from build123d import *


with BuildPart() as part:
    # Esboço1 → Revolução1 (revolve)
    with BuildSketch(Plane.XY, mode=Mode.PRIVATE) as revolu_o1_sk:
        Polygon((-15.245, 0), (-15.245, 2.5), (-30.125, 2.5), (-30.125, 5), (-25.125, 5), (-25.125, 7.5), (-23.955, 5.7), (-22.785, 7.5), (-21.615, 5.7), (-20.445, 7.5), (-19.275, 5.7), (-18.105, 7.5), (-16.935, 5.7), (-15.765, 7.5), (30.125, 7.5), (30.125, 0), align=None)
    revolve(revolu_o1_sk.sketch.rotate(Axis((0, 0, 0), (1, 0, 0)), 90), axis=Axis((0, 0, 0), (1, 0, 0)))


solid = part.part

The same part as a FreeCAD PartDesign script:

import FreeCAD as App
import Part
import Sketcher
from FreeCAD import Vector
Q = App.Units.Quantity

doc = App.newDocument("Part")
params = doc.addObject("Spreadsheet::Sheet", "Params")
for row, (alias, value) in enumerate([
    ("sketch1_width", "5 mm"),
    ("sketch1_height", "2.5 mm"),
    ("sketch1_width2", "45.37 mm"),
    ("sketch1_width3", "45.89 mm"),
    ("sketch1_width4", "14.88 mm"),
    ("revolution_angle", "360 deg"),
], start=1):
    params.set(f"A{row}", alias)
    params.set(f"B{row}", "=" + value)
    params.setAlias(f"B{row}", alias)

body = doc.addObject("PartDesign::Body", "Body")

# Sketch on XY plane
sketch1 = body.newObject("Sketcher::SketchObject", "Sketch")
sketch1.AttachmentSupport = (doc.getObject("XY_Plane"), [""])
sketch1.MapMode = "FlatFace"
sketch1.addGeometry([
    Part.LineSegment(Vector(-15.2, 2.5, 0), Vector(-15.2, 0, 0)),  # 0
    Part.LineSegment(Vector(-15.2, 0, 0), Vector(30.1, 0, 0)),  # 1
    Part.LineSegment(Vector(30.1, 0, 0), Vector(30.1, 7.5, 0)),  # 2
    Part.LineSegment(Vector(30.1, 7.5, 0), Vector(-15.8, 7.5, 0)),  # 3
    Part.LineSegment(Vector(-15.8, 7.5, 0), Vector(-16.9, 5.7, 0)),  # 4
    Part.LineSegment(Vector(-16.9, 5.7, 0), Vector(-18.1, 7.5, 0)),  # 5
    Part.LineSegment(Vector(-18.1, 7.5, 0), Vector(-19.3, 5.7, 0)),  # 6
    Part.LineSegment(Vector(-19.3, 5.7, 0), Vector(-20.4, 7.5, 0)),  # 7
    Part.LineSegment(Vector(-20.4, 7.5, 0), Vector(-21.6, 5.7, 0)),  # 8
    Part.LineSegment(Vector(-21.6, 5.7, 0), Vector(-22.8, 7.5, 0)),  # 9
    Part.LineSegment(Vector(-22.8, 7.5, 0), Vector(-24, 5.7, 0)),  # 10
    Part.LineSegment(Vector(-24, 5.7, 0), Vector(-25.1, 7.5, 0)),  # 11
    Part.LineSegment(Vector(-25.1, 7.5, 0), Vector(-25.1, 5, 0)),  # 12
    Part.LineSegment(Vector(-25.1, 5, 0), Vector(-30.1, 5, 0)),  # 13
    Part.LineSegment(Vector(-30.1, 5, 0), Vector(-30.1, 2.5, 0)),  # 14
    Part.LineSegment(Vector(-30.1, 2.5, 0), Vector(-15.2, 2.5, 0)),  # 15
], False)
sketch1.addConstraint([
    Sketcher.Constraint("Coincident", 0, 2, 1, 1),
    Sketcher.Constraint("Coincident", 1, 2, 2, 1),
    Sketcher.Constraint("Coincident", 2, 2, 3, 1),
    Sketcher.Constraint("Coincident", 3, 2, 4, 1),
    Sketcher.Constraint("Coincident", 4, 2, 5, 1),
    Sketcher.Constraint("Coincident", 5, 2, 6, 1),
    Sketcher.Constraint("Coincident", 6, 2, 7, 1),
    Sketcher.Constraint("Coincident", 7, 2, 8, 1),
    Sketcher.Constraint("Coincident", 8, 2, 9, 1),
    Sketcher.Constraint("Coincident", 9, 2, 10, 1),
    Sketcher.Constraint("Coincident", 10, 2, 11, 1),
    Sketcher.Constraint("Coincident", 11, 2, 12, 1),
    Sketcher.Constraint("Coincident", 12, 2, 13, 1),
    Sketcher.Constraint("Coincident", 13, 2, 14, 1),
    Sketcher.Constraint("Coincident", 14, 2, 15, 1),
    Sketcher.Constraint("Coincident", 15, 2, 0, 1),
    Sketcher.Constraint("Vertical", 0),
    Sketcher.Constraint("Horizontal", 1),
    Sketcher.Constraint("Vertical", 2),
    Sketcher.Constraint("Horizontal", 3),
    Sketcher.Constraint("Vertical", 12),
    Sketcher.Constraint("Horizontal", 13),
    Sketcher.Constraint("Vertical", 14),
    Sketcher.Constraint("Horizontal", 15),
    Sketcher.Constraint("PointOnObject", 0, 2, -1),
    Sketcher.Constraint("Parallel", 4, 6),
    Sketcher.Constraint("Parallel", 5, 7),
    Sketcher.Constraint("Parallel", 6, 8),
    Sketcher.Constraint("Parallel", 7, 9),
    Sketcher.Constraint("Parallel", 8, 10),
    Sketcher.Constraint("Parallel", 9, 11),
    Sketcher.Constraint("Horizontal", 3, 2, 5, 2),
    Sketcher.Constraint("Horizontal", 4, 2, 6, 2),
    Sketcher.Constraint("Horizontal", 5, 2, 7, 2),
    Sketcher.Constraint("Horizontal", 6, 2, 8, 2),
    Sketcher.Constraint("Horizontal", 7, 2, 9, 2),
    Sketcher.Constraint("Horizontal", 8, 2, 10, 2),
    Sketcher.Constraint("Horizontal", 9, 2, 11, 2),
    Sketcher.Constraint("Equal", 0, 12),
    Sketcher.Constraint("Equal", 12, 14),
    Sketcher.Constraint("Equal", 4, 5),
    Sketcher.Constraint("DistanceX", 13, 2, 13, 1, Q("5 mm")),
    Sketcher.Constraint("DistanceY", 0, 2, 0, 1, Q("2.5 mm")),
    Sketcher.Constraint("DistanceX", 1, 1, 1, 2, Q("45.37 mm")),
    Sketcher.Constraint("DistanceX", 3, 2, 3, 1, Q("45.89 mm")),
    Sketcher.Constraint("DistanceX", 15, 1, 15, 2, Q("14.88 mm")),
    Sketcher.Constraint("DistanceY", -1, 1, 4, 2, Q("5.7 mm")),
    Sketcher.Constraint("DistanceX", 0, 2, -1, 1, Q("15.245 mm")),
])
sketch1.setExpression("Constraints[41]", "Params.sketch1_width")
sketch1.setExpression("Constraints[42]", "Params.sketch1_height")
sketch1.setExpression("Constraints[43]", "Params.sketch1_width2")
sketch1.setExpression("Constraints[44]", "Params.sketch1_width3")
sketch1.setExpression("Constraints[45]", "Params.sketch1_width4")
revolution = body.newObject("PartDesign::Revolution", "Revolution")
revolution.Profile = sketch1
revolution.ReferenceAxis = (sketch1, ["H_Axis"])
revolution.setExpression("Angle", "Params.revolution_angle")

doc.recompute()
